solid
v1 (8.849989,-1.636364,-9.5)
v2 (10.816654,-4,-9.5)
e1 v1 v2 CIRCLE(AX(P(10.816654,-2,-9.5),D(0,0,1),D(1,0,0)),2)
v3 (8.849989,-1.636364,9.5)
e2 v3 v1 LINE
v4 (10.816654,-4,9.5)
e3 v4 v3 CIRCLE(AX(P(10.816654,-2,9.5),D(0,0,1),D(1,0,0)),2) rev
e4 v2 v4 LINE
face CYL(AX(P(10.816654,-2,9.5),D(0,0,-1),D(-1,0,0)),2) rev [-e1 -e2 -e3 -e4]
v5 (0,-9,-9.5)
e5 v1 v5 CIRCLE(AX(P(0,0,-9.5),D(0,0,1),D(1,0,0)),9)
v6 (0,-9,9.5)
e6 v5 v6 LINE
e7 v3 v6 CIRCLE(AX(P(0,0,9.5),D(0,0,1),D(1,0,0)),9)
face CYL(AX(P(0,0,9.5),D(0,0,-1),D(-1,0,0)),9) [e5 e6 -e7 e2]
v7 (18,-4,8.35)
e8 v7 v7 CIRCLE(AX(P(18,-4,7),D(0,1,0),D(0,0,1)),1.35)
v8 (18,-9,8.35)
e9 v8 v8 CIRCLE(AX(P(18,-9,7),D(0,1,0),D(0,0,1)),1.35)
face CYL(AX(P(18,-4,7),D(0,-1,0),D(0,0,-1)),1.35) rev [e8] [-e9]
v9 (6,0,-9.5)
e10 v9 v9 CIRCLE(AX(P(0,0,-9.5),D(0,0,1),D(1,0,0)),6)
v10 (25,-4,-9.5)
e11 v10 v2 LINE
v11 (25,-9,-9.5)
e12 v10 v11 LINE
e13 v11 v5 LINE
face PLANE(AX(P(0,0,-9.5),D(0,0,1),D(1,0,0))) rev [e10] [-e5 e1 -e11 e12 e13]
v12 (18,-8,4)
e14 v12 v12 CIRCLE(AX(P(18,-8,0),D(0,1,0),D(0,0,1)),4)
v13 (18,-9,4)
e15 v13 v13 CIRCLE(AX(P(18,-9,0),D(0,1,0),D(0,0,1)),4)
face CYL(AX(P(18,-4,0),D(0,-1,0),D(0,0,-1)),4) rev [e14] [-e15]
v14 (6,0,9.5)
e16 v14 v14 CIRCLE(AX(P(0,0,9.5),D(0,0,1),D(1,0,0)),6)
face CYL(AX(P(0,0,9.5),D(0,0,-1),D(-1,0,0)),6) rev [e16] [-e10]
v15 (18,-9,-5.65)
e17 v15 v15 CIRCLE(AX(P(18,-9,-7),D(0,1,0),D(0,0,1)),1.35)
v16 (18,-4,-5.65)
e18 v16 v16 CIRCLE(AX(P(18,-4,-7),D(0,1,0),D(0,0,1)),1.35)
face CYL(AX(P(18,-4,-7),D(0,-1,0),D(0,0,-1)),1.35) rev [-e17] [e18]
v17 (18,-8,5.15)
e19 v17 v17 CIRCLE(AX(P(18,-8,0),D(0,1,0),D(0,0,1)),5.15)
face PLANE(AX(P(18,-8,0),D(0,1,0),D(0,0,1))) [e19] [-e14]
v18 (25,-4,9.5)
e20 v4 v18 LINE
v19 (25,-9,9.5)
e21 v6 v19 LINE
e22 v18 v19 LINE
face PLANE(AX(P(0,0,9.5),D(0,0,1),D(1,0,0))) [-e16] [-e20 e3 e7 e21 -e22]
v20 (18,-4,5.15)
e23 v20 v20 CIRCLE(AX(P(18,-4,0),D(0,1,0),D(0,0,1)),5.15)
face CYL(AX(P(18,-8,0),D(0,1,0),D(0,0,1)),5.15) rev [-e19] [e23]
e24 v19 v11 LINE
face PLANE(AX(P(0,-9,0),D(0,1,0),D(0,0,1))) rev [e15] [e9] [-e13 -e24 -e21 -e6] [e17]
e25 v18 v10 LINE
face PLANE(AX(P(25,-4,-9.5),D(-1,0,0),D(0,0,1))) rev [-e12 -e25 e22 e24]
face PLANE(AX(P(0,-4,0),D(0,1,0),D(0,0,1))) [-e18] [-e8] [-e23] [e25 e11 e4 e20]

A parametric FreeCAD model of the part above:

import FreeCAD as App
import Part
import Sketcher

V = App.Vector


def edges_at(feature, points):
    """Names of the edges that pass closest to the given points."""
    edges = feature.Shape.Edges
    near = lambda p: min(range(len(edges)), key=lambda i: edges[i].distToShape(Part.Vertex(*p))[0])
    return sorted({f"Edge{near(p) + 1}" for p in points})


def add_polygon(sketch, points):
    """Adds a closed chain of lines whose ends are joined by coincident constraints."""
    first, n = sketch.GeometryCount, len(points)
    for a, b in zip(points, points[1:] + points[:1]):
        sketch.addGeometry(Part.LineSegment(App.Vector(*a, 0), App.Vector(*b, 0)), False)
    for i in range(n):
        sketch.addConstraint(Sketcher.Constraint("Coincident", first + i, 2, first + (i + 1) % n, 1))

doc = App.newDocument("Part")
body = doc.addObject("PartDesign::Body", "Body")

sketch1 = body.newObject("Sketcher::SketchObject", "Sketch")
sketch1.AttachmentSupport = (doc.getObject("XY_Plane"), [""])
sketch1.MapMode = "FlatFace"
sketch1.addGeometry(Part.Circle(V(0, 0, 0), V(0, 0, 1), 9), False)
sketch1.addGeometry(Part.Circle(V(0, 0, 0), V(0, 0, 1), 6), False)
sketch1.addConstraint(Sketcher.Constraint("Coincident", 0, 3, -1, 1))
sketch1.addConstraint(Sketcher.Constraint("Coincident", 1, 3, -1, 1))
sketch1.addConstraint(Sketcher.Constraint("Diameter", 0, 18.0))
sketch1.addConstraint(Sketcher.Constraint("Diameter", 1, 12.0))
pad1 = body.newObject("PartDesign::Pad", "Pad")
pad1.Profile = sketch1
pad1.Length = 19
pad1.Midplane = True

sketch2 = body.newObject("Sketcher::SketchObject", "Sketch001")
sketch2.AttachmentSupport = (doc.getObject("XZ_Plane"), [""])
sketch2.MapMode = "FlatFace"
sketch2.AttachmentOffset = App.Placement(V(0, 0, 9), App.Rotation())
add_polygon(sketch2, [(0, -9.5), (0, 9.5), (25, 9.5), (25, -9.5)])
sketch2.addGeometry(Part.Circle(V(18, 7, 0), V(0, 0, 1), 1.4), False)
sketch2.addGeometry(Part.Circle(V(18, 0, 0), V(0, 0, 1), 4), False)
sketch2.addGeometry(Part.Circle(V(18, -7, 0), V(0, 0, 1), 1.4), False)
sketch2.addConstraint(Sketcher.Constraint("Vertical", 0))
sketch2.addConstraint(Sketcher.Constraint("Horizontal", 1))
sketch2.addConstraint(Sketcher.Constraint("Vertical", 2))
sketch2.addConstraint(Sketcher.Constraint("Horizontal", 3))
sketch2.addConstraint(Sketcher.Constraint("Equal", 4, 6))
sketch2.addConstraint(Sketcher.Constraint("Symmetric", 0, 2, 3, 2, -1, 1))
sketch2.addConstraint(Sketcher.Constraint("Symmetric", 4, 3, 6, 3, -1))
sketch2.addConstraint(Sketcher.Constraint("PointOnObject", 5, 3, -1))
sketch2.addConstraint(Sketcher.Constraint("Vertical", 4, 3, 5, 3))
sketch2.addConstraint(Sketcher.Constraint("Diameter", 5, 8.0))
sketch2.addConstraint(Sketcher.Constraint("Diameter", 4, 2.7))
sketch2.addConstraint(Sketcher.Constraint("DistanceX", 1, 1, 1, 2, 25.0))
sketch2.addConstraint(Sketcher.Constraint("DistanceY", 0, 1, 0, 2, 19.0))
sketch2.addConstraint(Sketcher.Constraint("DistanceX", -1, 1, 4, 3, 18.0))
sketch2.addConstraint(Sketcher.Constraint("DistanceY", -1, 1, 4, 3, 7.0))
pad2 = body.newObject("PartDesign::Pad", "Pad001")
pad2.Profile = sketch2
pad2.Length = 5
pad2.Reversed = True

sketch3 = body.newObject("Sketcher::SketchObject", "Sketch002")
sketch3.AttachmentSupport = (doc.getObject("XZ_Plane"), [""])
sketch3.MapMode = "FlatFace"
sketch3.AttachmentOffset = App.Placement(V(0, 0, 4), App.Rotation())
sketch3.addGeometry(Part.Circle(V(18, 0, 0), V(0, 0, 1), 5), False)
sketch3.addConstraint(Sketcher.Constraint("PointOnObject", 0, 3, -1))
sketch3.addConstraint(Sketcher.Constraint("Diameter", 0, 10.3))
sketch3.addConstraint(Sketcher.Constraint("DistanceX", -1, 1, 0, 3, 18.0))
pocket1 = body.newObject("PartDesign::Pocket", "Pocket")
pocket1.Profile = sketch3
pocket1.Length = 4
pocket1.Reversed = True
doc.recompute()

fillet = body.newObject("PartDesign::Fillet", "Fillet")
fillet.Base = (pocket1, edges_at(pocket1, [(8.062, -4, 0)]))
fillet.Radius = 2

sketch4 = body.newObject("Sketcher::SketchObject", "Sketch003")
sketch4.AttachmentSupport = (doc.getObject("XY_Plane"), [""])
sketch4.MapMode = "FlatFace"
sketch4.AttachmentOffset = App.Placement(V(0, 0, 9.5), App.Rotation())
sketch4.addGeometry(Part.Circle(V(0, 0, 0), V(0, 0, 1), 6), False)
sketch4.addConstraint(Sketcher.Constraint("Coincident", 0, 3, -1, 1))
sketch4.addConstraint(Sketcher.Constraint("Diameter", 0, 12.0))
pocket2 = body.newObject("PartDesign::Pocket", "Pocket001")
pocket2.Profile = sketch4
pocket2.Type = "ThroughAll"

doc.recompute()
